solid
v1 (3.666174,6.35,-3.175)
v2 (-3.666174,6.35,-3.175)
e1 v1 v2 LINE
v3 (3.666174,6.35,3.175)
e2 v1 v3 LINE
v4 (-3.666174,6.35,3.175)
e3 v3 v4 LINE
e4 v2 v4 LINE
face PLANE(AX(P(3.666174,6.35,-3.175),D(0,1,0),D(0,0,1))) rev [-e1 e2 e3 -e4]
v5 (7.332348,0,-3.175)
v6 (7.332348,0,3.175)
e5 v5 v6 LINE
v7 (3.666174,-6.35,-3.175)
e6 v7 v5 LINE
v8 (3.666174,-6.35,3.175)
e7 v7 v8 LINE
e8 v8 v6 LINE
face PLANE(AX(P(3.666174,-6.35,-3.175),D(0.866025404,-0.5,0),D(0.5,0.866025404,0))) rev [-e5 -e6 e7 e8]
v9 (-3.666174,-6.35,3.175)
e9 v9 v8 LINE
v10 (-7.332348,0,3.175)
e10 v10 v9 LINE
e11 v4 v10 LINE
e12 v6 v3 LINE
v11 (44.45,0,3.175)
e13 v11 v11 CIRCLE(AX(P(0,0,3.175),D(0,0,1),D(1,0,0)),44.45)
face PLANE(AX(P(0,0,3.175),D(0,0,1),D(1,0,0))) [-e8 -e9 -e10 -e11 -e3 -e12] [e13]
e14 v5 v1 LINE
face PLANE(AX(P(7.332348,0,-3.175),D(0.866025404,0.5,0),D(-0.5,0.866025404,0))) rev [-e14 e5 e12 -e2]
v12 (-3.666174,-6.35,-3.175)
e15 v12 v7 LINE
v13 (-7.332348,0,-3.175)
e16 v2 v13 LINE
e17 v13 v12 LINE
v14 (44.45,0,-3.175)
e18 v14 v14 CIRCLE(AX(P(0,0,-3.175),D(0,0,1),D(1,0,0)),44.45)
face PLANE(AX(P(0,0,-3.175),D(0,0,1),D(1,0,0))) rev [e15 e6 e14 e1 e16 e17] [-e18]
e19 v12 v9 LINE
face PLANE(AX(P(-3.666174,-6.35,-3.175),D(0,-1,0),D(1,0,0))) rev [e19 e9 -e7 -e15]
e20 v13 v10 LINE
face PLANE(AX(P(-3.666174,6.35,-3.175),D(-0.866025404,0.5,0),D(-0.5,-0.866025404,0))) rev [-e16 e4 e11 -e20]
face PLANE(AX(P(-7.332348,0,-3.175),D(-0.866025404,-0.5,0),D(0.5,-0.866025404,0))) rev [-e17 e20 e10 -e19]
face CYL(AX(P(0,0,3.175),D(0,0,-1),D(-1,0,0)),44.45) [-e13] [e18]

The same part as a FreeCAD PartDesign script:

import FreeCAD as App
import Part
import Sketcher
from FreeCAD import Vector
Q = App.Units.Quantity


def add_polygon(sketch, points):
    """Adds a closed chain of lines whose ends are joined by coincident constraints."""
    first, n = sketch.GeometryCount, len(points)
    for a, b in zip(points, points[1:] + points[:1]):
        sketch.addGeometry(Part.LineSegment(App.Vector(*a, 0), App.Vector(*b, 0)), False)
    for i in range(n):
        sketch.addConstraint(Sketcher.Constraint("Coincident", first + i, 2, first + (i + 1) % n, 1))

doc = App.newDocument("Part")
body = doc.addObject("PartDesign::Body", "Body")

# Sketch on XY plane
sketch1 = body.newObject("Sketcher::SketchObject", "Sketch")
sketch1.AttachmentSupport = (doc.getObject("XY_Plane"), [""])
sketch1.MapMode = "FlatFace"
sketch1.addGeometry(Part.Circle(Vector(0, 0, 0), Vector(0, 0, 1), 44), False)
sketch1.addConstraint([
    Sketcher.Constraint("Coincident", 0, 3, -1, 1),
    Sketcher.Constraint("Diameter", 0, Q("3.5 in")),
])
pad1 = body.newObject("PartDesign::Pad", "Pad")
pad1.Profile = sketch1
pad1.Length = Q("0.25 in")
pad1.Midplane = True

# Sketch on XY plane
sketch2 = body.newObject("Sketcher::SketchObject", "Sketch001")
sketch2.AttachmentSupport = (doc.getObject("XY_Plane"), [""])
sketch2.MapMode = "FlatFace"
add_polygon(sketch2, [(7, 0), (4, 6), (-4, 6), (-7, 0), (-4, -6), (4, -6)])  # lines 0-5
sketch2.addConstraint([
    Sketcher.Constraint("Horizontal", 1),
    Sketcher.Constraint("Horizontal", 4),
    Sketcher.Constraint("Symmetric", 0, 2, 3, 2, -1, 1),
    Sketcher.Constraint("Symmetric", 2, 2, 5, 2, -1, 1),
    Sketcher.Constraint("PointOnObject", 2, 2, -1),
    Sketcher.Constraint("Parallel", 2, 5),
    Sketcher.Constraint("Vertical", 1, 2, 3, 2),
    Sketcher.Constraint("Angle", 0, Q("120 deg")),
    Sketcher.Constraint("DistanceY", 3, 2, 1, 2, Q("0.5 in")),
    Sketcher.Constraint("DistanceX", 1, 2, 1, 1, Q("7.332348 mm")),
])
pocket1 = body.newObject("PartDesign::Pocket", "Pocket")
pocket1.Profile = sketch2
pocket1.Length = Q("0.25 in")
pocket1.Midplane = True

doc.recompute()
